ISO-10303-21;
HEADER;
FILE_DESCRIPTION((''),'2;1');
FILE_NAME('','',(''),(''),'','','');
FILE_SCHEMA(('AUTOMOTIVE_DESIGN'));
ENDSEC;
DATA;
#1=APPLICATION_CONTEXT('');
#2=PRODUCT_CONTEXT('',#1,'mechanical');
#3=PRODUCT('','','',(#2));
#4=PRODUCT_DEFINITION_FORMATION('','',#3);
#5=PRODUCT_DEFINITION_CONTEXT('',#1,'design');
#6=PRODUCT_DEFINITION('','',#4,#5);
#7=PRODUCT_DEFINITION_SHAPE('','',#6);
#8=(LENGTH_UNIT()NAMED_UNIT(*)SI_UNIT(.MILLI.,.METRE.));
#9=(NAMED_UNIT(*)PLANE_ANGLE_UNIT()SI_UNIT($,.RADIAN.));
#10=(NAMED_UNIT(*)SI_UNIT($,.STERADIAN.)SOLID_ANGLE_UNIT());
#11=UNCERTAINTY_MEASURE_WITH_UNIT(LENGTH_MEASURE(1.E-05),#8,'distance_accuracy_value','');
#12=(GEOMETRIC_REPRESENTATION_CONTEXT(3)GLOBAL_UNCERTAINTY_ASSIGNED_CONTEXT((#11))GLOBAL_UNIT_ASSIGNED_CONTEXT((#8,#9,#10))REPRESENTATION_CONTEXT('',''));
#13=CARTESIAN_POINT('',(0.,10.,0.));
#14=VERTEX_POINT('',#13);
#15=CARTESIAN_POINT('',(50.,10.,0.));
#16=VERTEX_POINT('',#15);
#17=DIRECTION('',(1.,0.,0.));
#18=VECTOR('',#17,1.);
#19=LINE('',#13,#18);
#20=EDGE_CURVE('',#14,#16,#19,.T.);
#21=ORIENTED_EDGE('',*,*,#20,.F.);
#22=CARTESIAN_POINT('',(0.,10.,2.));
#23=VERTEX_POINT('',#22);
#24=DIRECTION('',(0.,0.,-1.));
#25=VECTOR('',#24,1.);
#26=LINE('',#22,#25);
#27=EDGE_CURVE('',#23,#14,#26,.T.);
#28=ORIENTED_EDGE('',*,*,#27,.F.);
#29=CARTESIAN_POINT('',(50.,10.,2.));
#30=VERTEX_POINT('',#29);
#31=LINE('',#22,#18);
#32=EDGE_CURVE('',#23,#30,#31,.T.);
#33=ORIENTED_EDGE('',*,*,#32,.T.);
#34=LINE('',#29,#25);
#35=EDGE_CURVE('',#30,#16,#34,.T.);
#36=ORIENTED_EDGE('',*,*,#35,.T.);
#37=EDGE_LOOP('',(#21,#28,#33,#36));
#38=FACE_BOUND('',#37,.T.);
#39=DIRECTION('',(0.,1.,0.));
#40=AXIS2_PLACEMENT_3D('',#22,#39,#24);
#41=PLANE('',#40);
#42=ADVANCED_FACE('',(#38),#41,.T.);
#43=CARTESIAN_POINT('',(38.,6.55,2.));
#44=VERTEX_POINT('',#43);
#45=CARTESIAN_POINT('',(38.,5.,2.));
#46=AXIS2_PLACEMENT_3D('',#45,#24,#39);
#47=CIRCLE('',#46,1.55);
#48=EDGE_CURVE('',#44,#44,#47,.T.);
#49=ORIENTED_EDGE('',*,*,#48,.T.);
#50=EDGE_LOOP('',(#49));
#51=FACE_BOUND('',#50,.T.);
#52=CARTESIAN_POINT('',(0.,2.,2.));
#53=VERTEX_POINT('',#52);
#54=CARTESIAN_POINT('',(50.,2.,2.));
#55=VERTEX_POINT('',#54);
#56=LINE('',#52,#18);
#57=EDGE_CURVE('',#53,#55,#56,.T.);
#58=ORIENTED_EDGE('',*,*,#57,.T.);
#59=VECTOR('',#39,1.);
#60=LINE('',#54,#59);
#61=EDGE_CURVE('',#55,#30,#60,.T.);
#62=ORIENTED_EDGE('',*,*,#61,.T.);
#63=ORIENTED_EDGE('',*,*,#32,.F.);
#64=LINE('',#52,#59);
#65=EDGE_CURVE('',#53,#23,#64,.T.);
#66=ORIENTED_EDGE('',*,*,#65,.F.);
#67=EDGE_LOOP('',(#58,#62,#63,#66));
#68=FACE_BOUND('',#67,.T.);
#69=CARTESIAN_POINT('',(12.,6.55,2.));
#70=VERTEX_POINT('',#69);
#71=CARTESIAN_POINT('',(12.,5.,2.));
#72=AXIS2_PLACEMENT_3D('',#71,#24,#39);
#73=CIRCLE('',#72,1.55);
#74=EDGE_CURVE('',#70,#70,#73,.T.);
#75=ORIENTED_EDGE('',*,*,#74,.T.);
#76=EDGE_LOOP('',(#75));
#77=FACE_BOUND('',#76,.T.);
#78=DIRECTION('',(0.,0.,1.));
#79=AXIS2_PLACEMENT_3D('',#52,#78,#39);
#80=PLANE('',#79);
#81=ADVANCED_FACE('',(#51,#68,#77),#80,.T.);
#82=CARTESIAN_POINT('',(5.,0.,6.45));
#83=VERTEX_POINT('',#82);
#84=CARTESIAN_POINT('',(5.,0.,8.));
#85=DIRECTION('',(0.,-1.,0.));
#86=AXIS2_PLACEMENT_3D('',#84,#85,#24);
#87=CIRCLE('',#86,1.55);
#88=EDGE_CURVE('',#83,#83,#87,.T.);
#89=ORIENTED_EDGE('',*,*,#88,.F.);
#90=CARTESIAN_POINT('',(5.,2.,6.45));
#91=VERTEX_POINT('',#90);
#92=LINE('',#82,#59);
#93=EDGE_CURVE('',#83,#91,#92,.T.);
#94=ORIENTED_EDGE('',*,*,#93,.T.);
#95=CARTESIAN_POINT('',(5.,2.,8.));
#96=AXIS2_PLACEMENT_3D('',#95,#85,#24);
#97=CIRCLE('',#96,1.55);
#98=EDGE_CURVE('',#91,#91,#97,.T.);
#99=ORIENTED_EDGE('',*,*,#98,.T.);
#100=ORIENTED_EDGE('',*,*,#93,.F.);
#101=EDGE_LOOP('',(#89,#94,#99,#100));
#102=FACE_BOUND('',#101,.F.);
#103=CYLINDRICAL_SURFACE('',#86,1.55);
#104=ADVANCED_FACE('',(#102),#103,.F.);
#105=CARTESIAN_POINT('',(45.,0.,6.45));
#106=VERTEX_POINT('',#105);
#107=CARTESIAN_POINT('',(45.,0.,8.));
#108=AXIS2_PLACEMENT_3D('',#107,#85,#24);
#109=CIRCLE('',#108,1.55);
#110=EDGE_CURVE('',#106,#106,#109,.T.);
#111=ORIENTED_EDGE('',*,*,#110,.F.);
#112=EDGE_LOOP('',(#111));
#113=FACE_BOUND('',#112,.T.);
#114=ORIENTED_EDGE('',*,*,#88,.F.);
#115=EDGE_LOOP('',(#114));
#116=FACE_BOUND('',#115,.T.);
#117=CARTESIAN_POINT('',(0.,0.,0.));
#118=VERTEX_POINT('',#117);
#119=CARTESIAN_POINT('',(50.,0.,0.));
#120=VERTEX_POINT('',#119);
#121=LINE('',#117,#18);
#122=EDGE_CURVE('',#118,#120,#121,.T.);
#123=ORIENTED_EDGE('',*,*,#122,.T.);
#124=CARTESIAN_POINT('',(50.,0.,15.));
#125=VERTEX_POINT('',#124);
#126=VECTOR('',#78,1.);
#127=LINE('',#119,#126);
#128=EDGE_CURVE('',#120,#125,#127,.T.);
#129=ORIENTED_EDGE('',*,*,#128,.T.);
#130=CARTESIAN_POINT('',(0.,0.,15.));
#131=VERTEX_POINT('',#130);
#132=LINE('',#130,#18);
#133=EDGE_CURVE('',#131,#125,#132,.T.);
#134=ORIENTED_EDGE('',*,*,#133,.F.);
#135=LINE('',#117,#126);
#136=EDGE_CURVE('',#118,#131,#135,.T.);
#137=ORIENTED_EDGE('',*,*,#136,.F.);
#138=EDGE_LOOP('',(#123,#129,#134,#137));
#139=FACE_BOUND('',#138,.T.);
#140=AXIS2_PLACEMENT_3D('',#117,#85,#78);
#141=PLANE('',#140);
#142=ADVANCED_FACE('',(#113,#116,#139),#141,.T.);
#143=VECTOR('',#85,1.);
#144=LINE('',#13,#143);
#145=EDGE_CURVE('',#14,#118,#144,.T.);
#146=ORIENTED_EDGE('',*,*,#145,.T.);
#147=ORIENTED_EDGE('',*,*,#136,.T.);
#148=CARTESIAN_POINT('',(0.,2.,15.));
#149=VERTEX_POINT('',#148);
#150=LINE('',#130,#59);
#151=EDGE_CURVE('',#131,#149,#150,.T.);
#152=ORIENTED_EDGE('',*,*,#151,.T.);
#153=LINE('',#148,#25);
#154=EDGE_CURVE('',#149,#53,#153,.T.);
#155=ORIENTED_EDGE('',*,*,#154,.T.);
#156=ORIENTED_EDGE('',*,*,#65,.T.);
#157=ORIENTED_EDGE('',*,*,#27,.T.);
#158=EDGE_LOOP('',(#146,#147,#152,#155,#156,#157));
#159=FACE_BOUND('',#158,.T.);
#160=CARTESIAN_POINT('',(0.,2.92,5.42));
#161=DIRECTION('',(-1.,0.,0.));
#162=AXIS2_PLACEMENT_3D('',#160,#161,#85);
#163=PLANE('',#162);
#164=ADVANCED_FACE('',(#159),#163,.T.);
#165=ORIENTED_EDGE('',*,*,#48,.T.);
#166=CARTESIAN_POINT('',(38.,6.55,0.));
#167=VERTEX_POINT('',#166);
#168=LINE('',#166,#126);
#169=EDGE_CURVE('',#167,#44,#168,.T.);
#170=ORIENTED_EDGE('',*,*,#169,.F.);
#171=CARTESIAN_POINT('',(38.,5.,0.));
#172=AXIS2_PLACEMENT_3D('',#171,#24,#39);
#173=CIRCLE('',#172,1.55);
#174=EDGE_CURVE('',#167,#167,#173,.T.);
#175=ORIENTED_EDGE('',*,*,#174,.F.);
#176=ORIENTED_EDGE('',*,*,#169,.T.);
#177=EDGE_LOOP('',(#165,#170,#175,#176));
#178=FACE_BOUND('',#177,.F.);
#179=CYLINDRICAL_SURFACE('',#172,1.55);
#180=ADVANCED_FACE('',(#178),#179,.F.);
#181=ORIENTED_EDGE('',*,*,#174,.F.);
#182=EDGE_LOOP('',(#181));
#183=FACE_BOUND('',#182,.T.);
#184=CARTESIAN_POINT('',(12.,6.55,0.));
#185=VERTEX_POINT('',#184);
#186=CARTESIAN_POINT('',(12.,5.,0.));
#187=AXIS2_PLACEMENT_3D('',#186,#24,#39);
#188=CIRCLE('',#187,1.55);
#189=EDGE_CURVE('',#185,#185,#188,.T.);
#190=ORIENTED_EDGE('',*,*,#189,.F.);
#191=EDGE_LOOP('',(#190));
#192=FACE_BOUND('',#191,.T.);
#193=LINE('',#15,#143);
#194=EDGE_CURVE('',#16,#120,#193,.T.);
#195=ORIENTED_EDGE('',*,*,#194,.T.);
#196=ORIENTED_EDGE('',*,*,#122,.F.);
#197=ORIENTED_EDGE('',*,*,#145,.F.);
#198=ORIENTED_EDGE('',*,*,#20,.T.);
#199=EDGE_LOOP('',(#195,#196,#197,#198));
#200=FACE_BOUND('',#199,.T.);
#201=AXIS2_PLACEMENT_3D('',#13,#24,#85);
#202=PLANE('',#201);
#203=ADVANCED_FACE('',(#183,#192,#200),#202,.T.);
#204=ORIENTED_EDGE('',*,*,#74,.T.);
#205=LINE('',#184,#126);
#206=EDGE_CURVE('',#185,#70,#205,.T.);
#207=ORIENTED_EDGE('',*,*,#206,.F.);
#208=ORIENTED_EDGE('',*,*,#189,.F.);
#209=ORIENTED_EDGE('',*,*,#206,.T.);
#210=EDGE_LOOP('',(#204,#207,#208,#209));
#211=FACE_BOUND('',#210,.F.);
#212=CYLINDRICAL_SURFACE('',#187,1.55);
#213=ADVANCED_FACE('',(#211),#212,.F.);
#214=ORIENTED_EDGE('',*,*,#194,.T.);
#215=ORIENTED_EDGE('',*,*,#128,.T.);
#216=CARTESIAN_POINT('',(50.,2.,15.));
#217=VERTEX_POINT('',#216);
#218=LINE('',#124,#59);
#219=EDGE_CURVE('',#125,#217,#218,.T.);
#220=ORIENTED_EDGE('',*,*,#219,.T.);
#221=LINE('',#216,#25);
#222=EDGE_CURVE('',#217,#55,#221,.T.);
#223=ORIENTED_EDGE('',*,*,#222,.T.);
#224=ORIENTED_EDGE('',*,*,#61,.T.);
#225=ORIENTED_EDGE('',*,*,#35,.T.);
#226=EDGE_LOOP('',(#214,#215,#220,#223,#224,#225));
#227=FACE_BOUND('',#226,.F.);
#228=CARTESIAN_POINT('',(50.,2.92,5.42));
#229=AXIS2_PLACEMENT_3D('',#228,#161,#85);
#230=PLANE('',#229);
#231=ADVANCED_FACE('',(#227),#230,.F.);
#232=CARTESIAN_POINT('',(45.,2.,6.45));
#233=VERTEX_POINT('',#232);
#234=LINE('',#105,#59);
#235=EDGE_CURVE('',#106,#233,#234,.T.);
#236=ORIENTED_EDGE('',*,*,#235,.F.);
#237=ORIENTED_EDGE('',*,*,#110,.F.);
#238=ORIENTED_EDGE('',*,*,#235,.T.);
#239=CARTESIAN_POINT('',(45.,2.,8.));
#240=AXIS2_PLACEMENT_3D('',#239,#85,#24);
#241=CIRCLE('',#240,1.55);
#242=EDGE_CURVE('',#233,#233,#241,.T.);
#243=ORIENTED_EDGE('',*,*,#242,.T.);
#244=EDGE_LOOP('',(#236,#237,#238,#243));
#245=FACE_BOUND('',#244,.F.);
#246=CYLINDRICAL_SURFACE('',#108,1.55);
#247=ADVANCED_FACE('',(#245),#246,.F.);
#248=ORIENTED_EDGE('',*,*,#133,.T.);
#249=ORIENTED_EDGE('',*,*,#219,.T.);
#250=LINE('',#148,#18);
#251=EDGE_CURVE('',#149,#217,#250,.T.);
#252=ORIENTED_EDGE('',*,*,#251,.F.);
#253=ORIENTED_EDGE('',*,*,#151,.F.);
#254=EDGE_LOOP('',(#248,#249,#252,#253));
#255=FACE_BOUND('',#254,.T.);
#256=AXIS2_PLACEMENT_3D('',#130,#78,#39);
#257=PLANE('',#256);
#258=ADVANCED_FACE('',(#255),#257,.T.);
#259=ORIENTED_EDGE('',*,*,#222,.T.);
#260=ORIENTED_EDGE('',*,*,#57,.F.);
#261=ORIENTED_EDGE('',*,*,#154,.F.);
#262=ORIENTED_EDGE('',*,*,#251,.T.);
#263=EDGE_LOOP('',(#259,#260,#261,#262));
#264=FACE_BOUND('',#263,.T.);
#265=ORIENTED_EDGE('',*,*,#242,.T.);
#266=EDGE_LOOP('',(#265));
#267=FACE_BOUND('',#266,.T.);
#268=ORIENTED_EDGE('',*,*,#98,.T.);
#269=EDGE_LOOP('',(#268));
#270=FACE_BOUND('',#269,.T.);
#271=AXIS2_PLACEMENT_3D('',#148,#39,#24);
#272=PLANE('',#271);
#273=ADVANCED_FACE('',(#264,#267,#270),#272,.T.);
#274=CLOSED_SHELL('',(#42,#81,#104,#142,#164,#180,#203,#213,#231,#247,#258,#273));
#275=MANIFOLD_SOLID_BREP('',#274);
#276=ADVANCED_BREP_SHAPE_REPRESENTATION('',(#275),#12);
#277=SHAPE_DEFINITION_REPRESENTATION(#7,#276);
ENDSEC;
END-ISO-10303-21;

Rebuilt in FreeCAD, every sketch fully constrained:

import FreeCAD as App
import Part
import Sketcher

V = App.Vector
Q = App.Units.Quantity


def add_polygon(sketch, points):
    """Adds a closed chain of lines whose ends are joined by coincident constraints."""
    first, n = sketch.GeometryCount, len(points)
    for a, b in zip(points, points[1:] + points[:1]):
        sketch.addGeometry(Part.LineSegment(App.Vector(*a, 0), App.Vector(*b, 0)), False)
    for i in range(n):
        sketch.addConstraint(Sketcher.Constraint("Coincident", first + i, 2, first + (i + 1) % n, 1))

doc = App.newDocument("Part")
body = doc.addObject("PartDesign::Body", "Body")

# Sketch on YZ plane
sketch1 = body.newObject("Sketcher::SketchObject", "Sketch")
sketch1.AttachmentSupport = (doc.getObject("YZ_Plane"), [""])
sketch1.MapMode = "FlatFace"
add_polygon(sketch1, [(0, 15), (0, 0), (10, 0), (10, 2), (2, 2), (2, 15)])  # lines 0-5
sketch1.addConstraint(Sketcher.Constraint("Vertical", 0))
sketch1.addConstraint(Sketcher.Constraint("Horizontal", 1))
sketch1.addConstraint(Sketcher.Constraint("Vertical", 2))
sketch1.addConstraint(Sketcher.Constraint("Horizontal", 3))
sketch1.addConstraint(Sketcher.Constraint("Vertical", 4))
sketch1.addConstraint(Sketcher.Constraint("Horizontal", 5))
sketch1.addConstraint(Sketcher.Constraint("Coincident", 0, 2, -1, 1))
sketch1.addConstraint(Sketcher.Constraint("Equal", 5, 2))
sketch1.addConstraint(Sketcher.Constraint("DistanceX", 1, 1, 1, 2, Q("10 mm")))
sketch1.addConstraint(Sketcher.Constraint("DistanceX", 3, 2, 3, 1, Q("8 mm")))
sketch1.addConstraint(Sketcher.Constraint("DistanceY", 0, 2, 0, 1, Q("15 mm")))
pad1 = body.newObject("PartDesign::Pad", "Pad")
pad1.Profile = sketch1
pad1.Length = 50

# Sketch on XY plane
sketch2 = body.newObject("Sketcher::SketchObject", "Sketch001")
sketch2.AttachmentSupport = (doc.getObject("XY_Plane"), [""])
sketch2.MapMode = "FlatFace"
sketch2.addGeometry(Part.Circle(V(38, 5, 0), V(0, 0, 1), 1.55), False)
sketch2.addGeometry(Part.Circle(V(12, 5, 0), V(0, 0, 1), 1.55), False)
sketch2.addConstraint(Sketcher.Constraint("Equal", 0, 1))
sketch2.addConstraint(Sketcher.Constraint("Horizontal", 0, 3, 1, 3))
sketch2.addConstraint(Sketcher.Constraint("Diameter", 0, Q("3.1 mm")))
sketch2.addConstraint(Sketcher.Constraint("DistanceX", -1, 1, 0, 3, Q("38 mm")))
sketch2.addConstraint(Sketcher.Constraint("DistanceY", -1, 1, 0, 3, Q("5 mm")))
sketch2.addConstraint(Sketcher.Constraint("DistanceX", -1, 1, 1, 3, Q("12 mm")))
pocket1 = body.newObject("PartDesign::Pocket", "Pocket")
pocket1.Profile = sketch2
pocket1.Type = "ThroughAll"
pocket1.Reversed = True

# Sketch on XZ plane
sketch3 = body.newObject("Sketcher::SketchObject", "Sketch002")
sketch3.AttachmentSupport = (doc.getObject("XZ_Plane"), [""])
sketch3.MapMode = "FlatFace"
sketch3.addGeometry(Part.Circle(V(45, 8, 0), V(0, 0, 1), 1.55), False)
sketch3.addGeometry(Part.Circle(V(5, 8, 0), V(0, 0, 1), 1.55), False)
sketch3.addConstraint(Sketcher.Constraint("Equal", 0, 1))
sketch3.addConstraint(Sketcher.Constraint("Horizontal", 0, 3, 1, 3))
sketch3.addConstraint(Sketcher.Constraint("Diameter", 0, Q("3.1 mm")))
sketch3.addConstraint(Sketcher.Constraint("DistanceX", -1, 1, 0, 3, Q("45 mm")))
sketch3.addConstraint(Sketcher.Constraint("DistanceY", -1, 1, 0, 3, Q("8 mm")))
sketch3.addConstraint(Sketcher.Constraint("DistanceX", -1, 1, 1, 3, Q("5 mm")))
pocket2 = body.newObject("PartDesign::Pocket", "Pocket001")
pocket2.Profile = sketch3
pocket2.Type = "ThroughAll"

doc.recompute()
